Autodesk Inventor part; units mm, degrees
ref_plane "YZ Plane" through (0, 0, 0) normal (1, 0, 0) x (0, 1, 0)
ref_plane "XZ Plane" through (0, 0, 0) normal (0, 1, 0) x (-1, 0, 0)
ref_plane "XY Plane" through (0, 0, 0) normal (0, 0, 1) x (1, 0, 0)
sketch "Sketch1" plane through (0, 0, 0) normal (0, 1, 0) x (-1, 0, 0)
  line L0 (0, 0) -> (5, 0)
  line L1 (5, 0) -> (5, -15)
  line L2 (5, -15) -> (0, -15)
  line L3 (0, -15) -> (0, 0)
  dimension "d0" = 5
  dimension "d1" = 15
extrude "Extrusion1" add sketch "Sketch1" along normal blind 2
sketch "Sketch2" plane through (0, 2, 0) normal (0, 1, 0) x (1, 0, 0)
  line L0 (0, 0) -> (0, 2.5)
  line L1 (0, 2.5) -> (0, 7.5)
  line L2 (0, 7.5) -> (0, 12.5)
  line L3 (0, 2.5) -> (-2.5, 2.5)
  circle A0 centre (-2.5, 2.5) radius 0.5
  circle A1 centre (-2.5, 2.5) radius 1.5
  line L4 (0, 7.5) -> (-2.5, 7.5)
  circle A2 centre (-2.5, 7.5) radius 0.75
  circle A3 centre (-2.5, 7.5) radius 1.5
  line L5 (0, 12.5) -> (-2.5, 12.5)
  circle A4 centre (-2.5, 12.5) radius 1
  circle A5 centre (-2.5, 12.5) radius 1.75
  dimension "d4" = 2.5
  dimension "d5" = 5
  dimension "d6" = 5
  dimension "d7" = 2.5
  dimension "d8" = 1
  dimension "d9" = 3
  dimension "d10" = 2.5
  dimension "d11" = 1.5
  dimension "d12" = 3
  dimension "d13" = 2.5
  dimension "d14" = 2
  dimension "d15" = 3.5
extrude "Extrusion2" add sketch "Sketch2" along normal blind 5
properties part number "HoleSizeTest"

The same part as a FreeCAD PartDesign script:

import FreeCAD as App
import Part
import Sketcher
Q = App.Units.Quantity


def add_polygon(sketch, points):
    """Adds a closed chain of lines whose ends are joined by coincident constraints."""
    first, n = sketch.GeometryCount, len(points)
    for a, b in zip(points, points[1:] + points[:1]):
        sketch.addGeometry(Part.LineSegment(App.Vector(*a, 0), App.Vector(*b, 0)), False)
    for i in range(n):
        sketch.addConstraint(Sketcher.Constraint("Coincident", first + i, 2, first + (i + 1) % n, 1))

doc = App.newDocument("Part")
body = doc.addObject("PartDesign::Body", "Body")

# Sketch on XZ plane
sketch1 = doc.addObject("Sketcher::SketchObject", "Sketch")
body.addObject(sketch1)
sketch1.AttachmentSupport = (doc.XZ_Plane, [""])
sketch1.MapMode = "FlatFace"
add_polygon(sketch1, [(-5, 0), (0, 0), (0, -15), (-5, -15)])  # lines 0-3
sketch1.addConstraint([
    Sketcher.Constraint("Horizontal", 0),
    Sketcher.Constraint("Vertical", 1),
    Sketcher.Constraint("Horizontal", 2),
    Sketcher.Constraint("Vertical", 3),
    Sketcher.Constraint("Coincident", 0, 2, -1, 1),
    Sketcher.Constraint("DistanceX", 0, 1, 0, 2, Q("5 mm")),
    Sketcher.Constraint("DistanceY", 1, 2, 1, 1, Q("15 mm")),
])
pad1 = doc.addObject("PartDesign::Pad", "Pad")
body.addObject(pad1)
pad1.Profile = sketch1
pad1.Length = 2
pad1.Reversed = True

# Sketch on XZ plane
sketch2 = doc.addObject("Sketcher::SketchObject", "Sketch001")
body.addObject(sketch2)
sketch2.AttachmentSupport = (doc.XZ_Plane, [""])
sketch2.MapMode = "FlatFace"
sketch2.AttachmentOffset = App.Placement(App.Vector(0, 0, -2), App.Rotation())
sketch2.addGeometry([
    Part.Circle(App.Vector(-2.5, -7.5, 0), App.Vector(0, 0, 1), 1.5),  # 0
    Part.Circle(App.Vector(-2.5, -7.5, 0), App.Vector(0, 0, 1), 0.8),  # 1
    Part.Circle(App.Vector(-2.5, -12.5, 0), App.Vector(0, 0, 1), 1.8),  # 2
    Part.Circle(App.Vector(-2.5, -12.5, 0), App.Vector(0, 0, 1), 1),  # 3
    Part.Circle(App.Vector(-2.5, -2.5, 0), App.Vector(0, 0, 1), 1.5),  # 4
    Part.Circle(App.Vector(-2.5, -2.5, 0), App.Vector(0, 0, 1), 0.5),  # 5
], False)
sketch2.addConstraint([
    Sketcher.Constraint("Coincident", 1, 3, 0, 3),
    Sketcher.Constraint("Coincident", 3, 3, 2, 3),
    Sketcher.Constraint("Coincident", 5, 3, 4, 3),
    Sketcher.Constraint("Equal", 0, 4),
    Sketcher.Constraint("Vertical", 1, 3, 2, 3),
    Sketcher.Constraint("Vertical", 3, 3, 4, 3),
    Sketcher.Constraint("Diameter", 0, Q("3 mm")),
    Sketcher.Constraint("Diameter", 3, Q("2 mm")),
    Sketcher.Constraint("Diameter", 5, Q("1 mm")),
    Sketcher.Constraint("Diameter", 1, Q("1.5 mm")),
    Sketcher.Constraint("Diameter", 2, Q("3.5 mm")),
    Sketcher.Constraint("DistanceY", 2, 3, 0, 3, Q("5 mm")),
    Sketcher.Constraint("DistanceY", 0, 3, 4, 3, Q("5 mm")),
    Sketcher.Constraint("DistanceX", 0, 3, -1, 1, Q("2.5 mm")),
    Sketcher.Constraint("DistanceY", 4, 3, -1, 1, Q("2.5 mm")),
])
pad2 = doc.addObject("PartDesign::Pad", "Pad001")
body.addObject(pad2)
pad2.Profile = sketch2
pad2.Length = 5
pad2.Reversed = True

doc.recompute()
